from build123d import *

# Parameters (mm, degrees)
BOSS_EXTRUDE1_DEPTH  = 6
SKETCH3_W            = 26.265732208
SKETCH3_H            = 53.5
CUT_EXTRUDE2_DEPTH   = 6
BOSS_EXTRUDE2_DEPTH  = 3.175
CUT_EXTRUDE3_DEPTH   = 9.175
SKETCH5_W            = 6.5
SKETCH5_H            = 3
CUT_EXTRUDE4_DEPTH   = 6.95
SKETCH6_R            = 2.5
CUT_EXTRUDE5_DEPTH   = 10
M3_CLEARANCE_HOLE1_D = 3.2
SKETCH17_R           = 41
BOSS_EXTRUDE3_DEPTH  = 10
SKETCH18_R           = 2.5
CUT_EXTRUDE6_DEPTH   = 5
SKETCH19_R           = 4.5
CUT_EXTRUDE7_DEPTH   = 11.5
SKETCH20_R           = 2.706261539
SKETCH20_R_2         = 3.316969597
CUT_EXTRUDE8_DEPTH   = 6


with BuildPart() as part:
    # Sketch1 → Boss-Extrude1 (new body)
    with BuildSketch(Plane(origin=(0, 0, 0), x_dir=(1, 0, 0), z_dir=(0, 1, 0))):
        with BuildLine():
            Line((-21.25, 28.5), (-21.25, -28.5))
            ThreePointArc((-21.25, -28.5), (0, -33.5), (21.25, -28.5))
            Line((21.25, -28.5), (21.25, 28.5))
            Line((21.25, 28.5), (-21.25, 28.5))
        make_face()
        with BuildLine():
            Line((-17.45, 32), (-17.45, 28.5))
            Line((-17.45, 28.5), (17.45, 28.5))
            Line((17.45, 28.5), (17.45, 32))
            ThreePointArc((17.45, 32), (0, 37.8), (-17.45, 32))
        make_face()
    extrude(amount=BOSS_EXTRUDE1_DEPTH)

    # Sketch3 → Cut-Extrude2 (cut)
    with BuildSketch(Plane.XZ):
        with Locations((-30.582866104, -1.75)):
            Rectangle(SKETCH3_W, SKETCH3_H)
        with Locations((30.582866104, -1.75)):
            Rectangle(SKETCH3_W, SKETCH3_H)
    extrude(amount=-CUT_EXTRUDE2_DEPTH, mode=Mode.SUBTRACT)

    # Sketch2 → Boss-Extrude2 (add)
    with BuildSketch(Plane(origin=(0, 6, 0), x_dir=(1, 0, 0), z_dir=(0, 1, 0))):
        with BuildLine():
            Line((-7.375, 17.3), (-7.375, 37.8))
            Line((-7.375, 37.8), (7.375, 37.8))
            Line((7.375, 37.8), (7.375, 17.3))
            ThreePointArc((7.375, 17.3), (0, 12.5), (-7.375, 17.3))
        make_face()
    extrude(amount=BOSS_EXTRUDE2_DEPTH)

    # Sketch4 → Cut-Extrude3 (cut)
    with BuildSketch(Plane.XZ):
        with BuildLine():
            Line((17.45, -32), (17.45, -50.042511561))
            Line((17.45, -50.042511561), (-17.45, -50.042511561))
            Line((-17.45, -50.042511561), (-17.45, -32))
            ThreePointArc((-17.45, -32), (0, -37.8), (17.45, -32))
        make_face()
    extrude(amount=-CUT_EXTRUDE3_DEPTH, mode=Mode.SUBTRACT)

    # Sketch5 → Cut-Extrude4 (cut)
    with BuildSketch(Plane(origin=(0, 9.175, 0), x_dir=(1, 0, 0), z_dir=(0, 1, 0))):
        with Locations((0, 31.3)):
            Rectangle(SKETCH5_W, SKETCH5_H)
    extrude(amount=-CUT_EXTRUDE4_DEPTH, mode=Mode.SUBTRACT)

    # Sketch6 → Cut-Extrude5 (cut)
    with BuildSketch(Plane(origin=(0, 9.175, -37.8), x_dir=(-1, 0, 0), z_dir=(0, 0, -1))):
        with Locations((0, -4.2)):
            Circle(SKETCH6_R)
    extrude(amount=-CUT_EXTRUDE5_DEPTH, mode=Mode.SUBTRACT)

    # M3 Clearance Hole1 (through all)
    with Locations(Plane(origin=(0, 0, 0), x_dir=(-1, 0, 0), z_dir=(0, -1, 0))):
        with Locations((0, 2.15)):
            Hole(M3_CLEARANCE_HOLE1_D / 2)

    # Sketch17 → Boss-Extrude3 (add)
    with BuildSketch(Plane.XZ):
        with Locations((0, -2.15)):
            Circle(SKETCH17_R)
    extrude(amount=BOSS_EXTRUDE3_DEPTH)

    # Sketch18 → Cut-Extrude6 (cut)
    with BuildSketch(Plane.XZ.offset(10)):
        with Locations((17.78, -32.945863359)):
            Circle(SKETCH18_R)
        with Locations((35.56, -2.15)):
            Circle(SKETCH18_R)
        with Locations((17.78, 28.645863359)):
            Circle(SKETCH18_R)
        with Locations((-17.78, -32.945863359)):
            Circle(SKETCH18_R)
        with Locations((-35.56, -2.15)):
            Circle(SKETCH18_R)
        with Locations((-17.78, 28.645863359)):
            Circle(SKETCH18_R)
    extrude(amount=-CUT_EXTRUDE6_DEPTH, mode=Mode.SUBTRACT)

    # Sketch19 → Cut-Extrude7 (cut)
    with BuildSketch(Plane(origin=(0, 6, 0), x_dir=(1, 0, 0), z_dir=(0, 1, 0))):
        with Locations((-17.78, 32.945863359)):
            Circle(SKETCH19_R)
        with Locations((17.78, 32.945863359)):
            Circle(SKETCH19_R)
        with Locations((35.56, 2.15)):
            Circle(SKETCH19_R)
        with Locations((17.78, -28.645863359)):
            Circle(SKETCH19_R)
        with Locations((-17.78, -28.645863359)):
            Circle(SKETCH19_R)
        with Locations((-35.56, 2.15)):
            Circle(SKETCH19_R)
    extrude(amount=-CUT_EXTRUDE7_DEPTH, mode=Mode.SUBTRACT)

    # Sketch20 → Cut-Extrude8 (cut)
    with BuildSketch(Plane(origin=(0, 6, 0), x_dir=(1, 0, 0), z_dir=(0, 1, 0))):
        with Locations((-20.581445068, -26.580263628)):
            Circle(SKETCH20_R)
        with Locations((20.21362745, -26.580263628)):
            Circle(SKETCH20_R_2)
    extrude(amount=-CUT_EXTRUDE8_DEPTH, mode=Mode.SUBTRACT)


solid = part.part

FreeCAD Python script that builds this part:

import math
import FreeCAD as App
import Part
import Sketcher

V = App.Vector
Q = App.Units.Quantity


def add_polygon(sketch, points):
    """Adds a closed chain of lines whose ends are joined by coincident constraints."""
    first, n = sketch.GeometryCount, len(points)
    for a, b in zip(points, points[1:] + points[:1]):
        sketch.addGeometry(Part.LineSegment(App.Vector(*a, 0), App.Vector(*b, 0)), False)
    for i in range(n):
        sketch.addConstraint(Sketcher.Constraint("Coincident", first + i, 2, first + (i + 1) % n, 1))

doc = App.newDocument("Part")
body = doc.addObject("PartDesign::Body", "Body")

sketch1 = body.newObject("Sketcher::SketchObject", "Sketch")
sketch1.AttachmentSupport = (doc.getObject("XZ_Plane"), [""])
sketch1.MapMode = "FlatFace"
sketch1.addGeometry(Part.LineSegment(V(-21.2, -28.5, 0), V(-21.2, 28.5, 0)), False)
sketch1.addGeometry(Part.ArcOfCircle(Part.Circle(V(0, -14.2, 0), V(0, 0, 1), 47.7), math.radians(64), math.radians(116)), False)
sketch1.addGeometry(Part.LineSegment(V(21.2, 28.5, 0), V(21.2, -28.5, 0)), False)
sketch1.addGeometry(Part.LineSegment(V(21.2, -28.5, 0), V(17.4, -28.5, 0)), False)
sketch1.addGeometry(Part.LineSegment(V(17.4, -28.5, 0), V(17.4, -32, 0)), False)
sketch1.addGeometry(Part.ArcOfCircle(Part.Circle(V(0, -8.6, 0), V(0, 0, 1), 29.2), math.radians(-127), math.radians(-53)), False)
sketch1.addGeometry(Part.LineSegment(V(-17.4, -32, 0), V(-17.4, -28.5, 0)), False)
sketch1.addGeometry(Part.LineSegment(V(-17.4, -28.5, 0), V(-21.2, -28.5, 0)), False)
sketch1.addConstraint(Sketcher.Constraint("Coincident", 0, 2, 1, 2))
sketch1.addConstraint(Sketcher.Constraint("Coincident", 1, 1, 2, 1))
sketch1.addConstraint(Sketcher.Constraint("Coincident", 2, 2, 3, 1))
sketch1.addConstraint(Sketcher.Constraint("Coincident", 3, 2, 4, 1))
sketch1.addConstraint(Sketcher.Constraint("Coincident", 4, 2, 5, 2))
sketch1.addConstraint(Sketcher.Constraint("Coincident", 5, 1, 6, 1))
sketch1.addConstraint(Sketcher.Constraint("Coincident", 6, 2, 7, 1))
sketch1.addConstraint(Sketcher.Constraint("Coincident", 7, 2, 0, 1))
sketch1.addConstraint(Sketcher.Constraint("Vertical", 0))
sketch1.addConstraint(Sketcher.Constraint("Vertical", 2))
sketch1.addConstraint(Sketcher.Constraint("Horizontal", 3))
sketch1.addConstraint(Sketcher.Constraint("Vertical", 4))
sketch1.addConstraint(Sketcher.Constraint("Vertical", 6))
sketch1.addConstraint(Sketcher.Constraint("Horizontal", 7))
sketch1.addConstraint(Sketcher.Constraint("Symmetric", 0, 2, 2, 2, -1, 1))
sketch1.addConstraint(Sketcher.Constraint("Symmetric", 4, 2, 5, 1, -2))
sketch1.addConstraint(Sketcher.Constraint("PointOnObject", 1, 3, -2))
sketch1.addConstraint(Sketcher.Constraint("Horizontal", 3, 2, 6, 2))
sketch1.addConstraint(Sketcher.Constraint("DistanceY", 0, 1, 0, 2, Q("57 mm")))
sketch1.addConstraint(Sketcher.Constraint("DistanceX", 3, 2, 3, 1, Q("3.8 mm")))
sketch1.addConstraint(Sketcher.Constraint("DistanceY", 4, 2, 4, 1, Q("3.5 mm")))
sketch1.addConstraint(Sketcher.Constraint("DistanceX", 0, 2, 1, 1, Q("42.5 mm")))
sketch1.addConstraint(Sketcher.Constraint("Radius", 1, Q("47.65625 mm")))
sketch1.addConstraint(Sketcher.Constraint("Radius", 5, Q("29.150216 mm")))
pad1 = body.newObject("PartDesign::Pad", "Pad")
pad1.Profile = sketch1
pad1.Length = 6
pad1.Reversed = True

sketch2 = body.newObject("Sketcher::SketchObject", "Sketch001")
sketch2.AttachmentSupport = (doc.getObject("XZ_Plane"), [""])
sketch2.MapMode = "FlatFace"
add_polygon(sketch2, [(-44, 25), (-44, -28), (-17, -28), (-17, 25)])
add_polygon(sketch2, [(17, 25), (17, -28), (44, -28), (44, 25)])
sketch2.addConstraint(Sketcher.Constraint("Vertical", 0))
sketch2.addConstraint(Sketcher.Constraint("Horizontal", 1))
sketch2.addConstraint(Sketcher.Constraint("Vertical", 2))
sketch2.addConstraint(Sketcher.Constraint("Horizontal", 3))
sketch2.addConstraint(Sketcher.Constraint("Vertical", 4))
sketch2.addConstraint(Sketcher.Constraint("Horizontal", 5))
sketch2.addConstraint(Sketcher.Constraint("Vertical", 6))
sketch2.addConstraint(Sketcher.Constraint("Horizontal", 7))
sketch2.addConstraint(Sketcher.Constraint("Symmetric", 1, 2, 4, 2, -2))
sketch2.addConstraint(Sketcher.Constraint("Symmetric", 3, 2, 6, 2, -2))
sketch2.addConstraint(Sketcher.Constraint("DistanceY", 0, 2, 0, 1, Q("53.5 mm")))
sketch2.addConstraint(Sketcher.Constraint("DistanceY", -1, 1, 2, 2, Q("25 mm")))
sketch2.addConstraint(Sketcher.Constraint("DistanceX", 1, 2, 4, 2, Q("34.9 mm")))
sketch2.addConstraint(Sketcher.Constraint("DistanceX", 1, 1, 1, 2, Q("26.265732 mm")))
pocket1 = body.newObject("PartDesign::Pocket", "Pocket")
pocket1.Profile = sketch2
pocket1.Length = 6

sketch3 = body.newObject("Sketcher::SketchObject", "Sketch002")
sketch3.AttachmentSupport = (doc.getObject("XZ_Plane"), [""])
sketch3.MapMode = "FlatFace"
sketch3.AttachmentOffset = App.Placement(V(0, 0, -6), App.Rotation())
sketch3.addGeometry(Part.LineSegment(V(-7, -38, 0), V(-7, -17, 0)), False)
sketch3.addGeometry(Part.ArcOfCircle(Part.Circle(V(0, -21, 0), V(0, 0, 1), 8), math.radians(24), math.radians(156)), False)
sketch3.addGeometry(Part.LineSegment(V(7, -17, 0), V(7, -38, 0)), False)
sketch3.addGeometry(Part.LineSegment(V(7, -38, 0), V(-7, -38, 0)), False)
sketch3.addConstraint(Sketcher.Constraint("Coincident", 0, 2, 1, 2))
sketch3.addConstraint(Sketcher.Constraint("Coincident", 1, 1, 2, 1))
sketch3.addConstraint(Sketcher.Constraint("Coincident", 2, 2, 3, 1))
sketch3.addConstraint(Sketcher.Constraint("Coincident", 3, 2, 0, 1))
sketch3.addConstraint(Sketcher.Constraint("Vertical", 0))
sketch3.addConstraint(Sketcher.Constraint("Vertical", 2))
sketch3.addConstraint(Sketcher.Constraint("Horizontal", 3))
sketch3.addConstraint(Sketcher.Constraint("Symmetric", 0, 2, 1, 1, -2))
sketch3.addConstraint(Sketcher.Constraint("DistanceY", 0, 1, 0, 2, Q("20.5 mm")))
sketch3.addConstraint(Sketcher.Constraint("DistanceX", 3, 2, 3, 1, Q("14.75 mm")))
sketch3.addConstraint(Sketcher.Constraint("DistanceY", 0, 2, -1, 1, Q("17.3 mm")))
sketch3.addConstraint(Sketcher.Constraint("Radius", 1, Q("8.06569 mm")))
pad2 = body.newObject("PartDesign::Pad", "Pad001")
pad2.Profile = sketch3
pad2.Length = 3.175
pad2.Reversed = True

sketch4 = body.newObject("Sketcher::SketchObject", "Sketch003")
sketch4.AttachmentSupport = (doc.getObject("XZ_Plane"), [""])
sketch4.MapMode = "FlatFace"
sketch4.addGeometry(Part.LineSegment(V(17, -50, 0), V(17, -32, 0)), False)
sketch4.addGeometry(Part.ArcOfCircle(Part.Circle(V(0, -9, 0), V(0, 0, 1), 29), math.radians(-127), math.radians(-53)), False)
sketch4.addGeometry(Part.LineSegment(V(-17, -32, 0), V(-17, -50, 0)), False)
sketch4.addGeometry(Part.LineSegment(V(-17, -50, 0), V(17, -50, 0)), False)
sketch4.addConstraint(Sketcher.Constraint("Coincident", 0, 2, 1, 2))
sketch4.addConstraint(Sketcher.Constraint("Coincident", 1, 1, 2, 1))
sketch4.addConstraint(Sketcher.Constraint("Coincident", 2, 2, 3, 1))
sketch4.addConstraint(Sketcher.Constraint("Coincident", 3, 2, 0, 1))
sketch4.addConstraint(Sketcher.Constraint("Vertical", 0))
sketch4.addConstraint(Sketcher.Constraint("Vertical", 2))
sketch4.addConstraint(Sketcher.Constraint("Horizontal", 3))
sketch4.addConstraint(Sketcher.Constraint("Symmetric", 0, 2, 1, 1, -2))
sketch4.addConstraint(Sketcher.Constraint("DistanceX", 3, 1, 3, 2, Q("34.9 mm")))
sketch4.addConstraint(Sketcher.Constraint("DistanceY", 0, 2, -1, 1, Q("32 mm")))
sketch4.addConstraint(Sketcher.Constraint("Radius", 1, Q("29.150216 mm")))
sketch4.addConstraint(Sketcher.Constraint("DistanceY", 0, 1, 0, 2, Q("18.042512 mm")))
pocket2 = body.newObject("PartDesign::Pocket", "Pocket001")
pocket2.Profile = sketch4
pocket2.Length = 9.175

sketch5 = body.newObject("Sketcher::SketchObject", "Sketch004")
sketch5.AttachmentSupport = (doc.getObject("XZ_Plane"), [""])
sketch5.MapMode = "FlatFace"
sketch5.AttachmentOffset = App.Placement(V(0, 0, -9.175), App.Rotation())
add_polygon(sketch5, [(-3.2, -32.8), (-3.2, -29.8), (3.2, -29.8), (3.2, -32.8)])
sketch5.addConstraint(Sketcher.Constraint("Vertical", 0))
sketch5.addConstraint(Sketcher.Constraint("Horizontal", 1))
sketch5.addConstraint(Sketcher.Constraint("Vertical", 2))
sketch5.addConstraint(Sketcher.Constraint("Horizontal", 3))
sketch5.addConstraint(Sketcher.Constraint("DistanceY", 0, 1, 0, 2, Q("3 mm")))
sketch5.addConstraint(Sketcher.Constraint("DistanceX", 1, 1, 1, 2, Q("6.5 mm")))
sketch5.addConstraint(Sketcher.Constraint("DistanceY", 0, 2, -1, 1, Q("29.8 mm")))
sketch5.addConstraint(Sketcher.Constraint("DistanceX", 0, 2, -1, 1, Q("3.25 mm")))
pocket3 = body.newObject("PartDesign::Pocket", "Pocket002")
pocket3.Profile = sketch5
pocket3.Length = 6.95
pocket3.Reversed = True

sketch6 = body.newObject("Sketcher::SketchObject", "Sketch005")
sketch6.AttachmentSupport = (doc.getObject("XY_Plane"), [""])
sketch6.MapMode = "FlatFace"
sketch6.AttachmentOffset = App.Placement(V(0, 0, -37.8), App.Rotation())
sketch6.addGeometry(Part.Circle(V(0, 5, 0), V(0, 0, 1), 2.5), False)
sketch6.addConstraint(Sketcher.Constraint("PointOnObject", 0, 3, -2))
sketch6.addConstraint(Sketcher.Constraint("Diameter", 0, Q("5 mm")))
sketch6.addConstraint(Sketcher.Constraint("DistanceY", -1, 1, 0, 3, Q("4.975 mm")))
pocket4 = body.newObject("PartDesign::Pocket", "Pocket003")
pocket4.Profile = sketch6
pocket4.Length = 10
pocket4.Reversed = True

sketch7 = body.newObject("Sketcher::SketchObject", "Sketch006")
sketch7.AttachmentSupport = (doc.getObject("XZ_Plane"), [""])
sketch7.MapMode = "FlatFace"
sketch7.addGeometry(Part.Circle(V(0, -2.1, 0), V(0, 0, 1), 1.6), False)
sketch7.addConstraint(Sketcher.Constraint("PointOnObject", 0, 3, -2))
sketch7.addConstraint(Sketcher.Constraint("Diameter", 0, Q("3.2 mm")))
sketch7.addConstraint(Sketcher.Constraint("DistanceY", 0, 3, -1, 1, Q("2.15 mm")))
doc.recompute()
hole = body.newObject("PartDesign::Hole", "Hole")
hole.Profile = sketch7
hole.ThreadType = "None"
hole.Diameter = 3.2
hole.DepthType = "ThroughAll"

sketch8 = body.newObject("Sketcher::SketchObject", "Sketch007")
sketch8.AttachmentSupport = (doc.getObject("XZ_Plane"), [""])
sketch8.MapMode = "FlatFace"
sketch8.addGeometry(Part.Circle(V(0, -2, 0), V(0, 0, 1), 41), False)
sketch8.addConstraint(Sketcher.Constraint("PointOnObject", 0, 3, -2))
sketch8.addConstraint(Sketcher.Constraint("Diameter", 0, Q("82 mm")))
sketch8.addConstraint(Sketcher.Constraint("DistanceY", 0, 3, -1, 1, Q("2.15 mm")))
pad3 = body.newObject("PartDesign::Pad", "Pad002")
pad3.Profile = sketch8
pad3.Length = 10

sketch9 = body.newObject("Sketcher::SketchObject", "Sketch008")
sketch9.AttachmentSupport = (doc.getObject("XZ_Plane"), [""])
sketch9.MapMode = "FlatFace"
sketch9.AttachmentOffset = App.Placement(V(0, 0, 10), App.Rotation())
sketch9.addGeometry(Part.Circle(V(17.8, -32.9, 0), V(0, 0, 1), 2.5), False)
sketch9.addGeometry(Part.Circle(V(35.6, -2.1, 0), V(0, 0, 1), 2.5), False)
sketch9.addGeometry(Part.Circle(V(17.8, 28.6, 0), V(0, 0, 1), 2.5), False)
sketch9.addGeometry(Part.Circle(V(-17.8, -32.9, 0), V(0, 0, 1), 2.5), False)
sketch9.addGeometry(Part.Circle(V(-35.6, -2.1, 0), V(0, 0, 1), 2.5), False)
sketch9.addGeometry(Part.Circle(V(-17.8, 28.6, 0), V(0, 0, 1), 2.5), False)
sketch9.addConstraint(Sketcher.Constraint("Equal", 0, 1))
sketch9.addConstraint(Sketcher.Constraint("Equal", 1, 2))
sketch9.addConstraint(Sketcher.Constraint("Equal", 2, 3))
sketch9.addConstraint(Sketcher.Constraint("Equal", 3, 4))
sketch9.addConstraint(Sketcher.Constraint("Equal", 4, 5))
sketch9.addConstraint(Sketcher.Constraint("Symmetric", 0, 3, 3, 3, -2))
sketch9.addConstraint(Sketcher.Constraint("Symmetric", 1, 3, 4, 3, -2))
sketch9.addConstraint(Sketcher.Constraint("Symmetric", 2, 3, 5, 3, -2))
sketch9.addConstraint(Sketcher.Constraint("Vertical", 0, 3, 2, 3))
sketch9.addConstraint(Sketcher.Constraint("Diameter", 0, Q("5 mm")))
sketch9.addConstraint(Sketcher.Constraint("DistanceX", -1, 1, 0, 3, Q("17.78 mm")))
sketch9.addConstraint(Sketcher.Constraint("DistanceX", -1, 1, 1, 3, Q("35.56 mm")))
sketch9.addConstraint(Sketcher.Constraint("DistanceY", 1, 3, -1, 1, Q("2.15 mm")))
sketch9.addConstraint(Sketcher.Constraint("DistanceY", 0, 3, -1, 1, Q("32.945863 mm")))
sketch9.addConstraint(Sketcher.Constraint("DistanceY", -1, 1, 2, 3, Q("28.645863 mm")))
pocket5 = body.newObject("PartDesign::Pocket", "Pocket004")
pocket5.Profile = sketch9
pocket5.Length = 5

sketch10 = body.newObject("Sketcher::SketchObject", "Sketch009")
sketch10.AttachmentSupport = (doc.getObject("XZ_Plane"), [""])
sketch10.MapMode = "FlatFace"
sketch10.AttachmentOffset = App.Placement(V(0, 0, -6), App.Rotation())
sketch10.addGeometry(Part.Circle(V(-17.8, -32.9, 0), V(0, 0, 1), 4.5), False)
sketch10.addGeometry(Part.Circle(V(17.8, -32.9, 0), V(0, 0, 1), 4.5), False)
sketch10.addGeometry(Part.Circle(V(35.6, -2.1, 0), V(0, 0, 1), 4.5), False)
sketch10.addGeometry(Part.Circle(V(17.8, 28.6, 0), V(0, 0, 1), 4.5), False)
sketch10.addGeometry(Part.Circle(V(-17.8, 28.6, 0), V(0, 0, 1), 4.5), False)
sketch10.addGeometry(Part.Circle(V(-35.6, -2.1, 0), V(0, 0, 1), 4.5), False)
sketch10.addConstraint(Sketcher.Constraint("Equal", 0, 1))
sketch10.addConstraint(Sketcher.Constraint("Equal", 1, 2))
sketch10.addConstraint(Sketcher.Constraint("Equal", 2, 3))
sketch10.addConstraint(Sketcher.Constraint("Equal", 3, 4))
sketch10.addConstraint(Sketcher.Constraint("Equal", 4, 5))
sketch10.addConstraint(Sketcher.Constraint("Symmetric", 0, 3, 1, 3, -2))
sketch10.addConstraint(Sketcher.Constraint("Symmetric", 3, 3, 4, 3, -2))
sketch10.addConstraint(Sketcher.Constraint("Symmetric", 2, 3, 5, 3, -2))
sketch10.addConstraint(Sketcher.Constraint("Vertical", 1, 3, 3, 3))
sketch10.addConstraint(Sketcher.Constraint("Diameter", 0, Q("9 mm")))
sketch10.addConstraint(Sketcher.Constraint("DistanceX", 0, 3, -1, 1, Q("17.78 mm")))
sketch10.addConstraint(Sketcher.Constraint("DistanceX", -1, 1, 2, 3, Q("35.56 mm")))
sketch10.addConstraint(Sketcher.Constraint("DistanceY", 2, 3, -1, 1, Q("2.15 mm")))
sketch10.addConstraint(Sketcher.Constraint("DistanceY", 0, 3, -1, 1, Q("32.945863 mm")))
sketch10.addConstraint(Sketcher.Constraint("DistanceY", -1, 1, 3, 3, Q("28.645863 mm")))
pocket6 = body.newObject("PartDesign::Pocket", "Pocket005")
pocket6.Profile = sketch10
pocket6.Length = 11.5
pocket6.Reversed = True

sketch11 = body.newObject("Sketcher::SketchObject", "Sketch010")
sketch11.AttachmentSupport = (doc.getObject("XZ_Plane"), [""])
sketch11.MapMode = "FlatFace"
sketch11.AttachmentOffset = App.Placement(V(0, 0, -6), App.Rotation())
sketch11.addGeometry(Part.Circle(V(-20.6, 26.6, 0), V(0, 0, 1), 2.7), False)
sketch11.addGeometry(Part.Circle(V(20.2, 26.6, 0), V(0, 0, 1), 3.3), False)
sketch11.addConstraint(Sketcher.Constraint("Horizontal", 0, 3, 1, 3))
sketch11.addConstraint(Sketcher.Constraint("Diameter", 1, Q("6.633939 mm")))
sketch11.addConstraint(Sketcher.Constraint("Diameter", 0, Q("5.412523 mm")))
sketch11.addConstraint(Sketcher.Constraint("DistanceX", 0, 3, -1, 1, Q("20.581445 mm")))
sketch11.addConstraint(Sketcher.Constraint("DistanceY", -1, 1, 0, 3, Q("26.580264 mm")))
sketch11.addConstraint(Sketcher.Constraint("DistanceX", -1, 1, 1, 3, Q("20.213627 mm")))
pocket7 = body.newObject("PartDesign::Pocket", "Pocket006")
pocket7.Profile = sketch11
pocket7.Length = 6
pocket7.Reversed = True

doc.recompute()
